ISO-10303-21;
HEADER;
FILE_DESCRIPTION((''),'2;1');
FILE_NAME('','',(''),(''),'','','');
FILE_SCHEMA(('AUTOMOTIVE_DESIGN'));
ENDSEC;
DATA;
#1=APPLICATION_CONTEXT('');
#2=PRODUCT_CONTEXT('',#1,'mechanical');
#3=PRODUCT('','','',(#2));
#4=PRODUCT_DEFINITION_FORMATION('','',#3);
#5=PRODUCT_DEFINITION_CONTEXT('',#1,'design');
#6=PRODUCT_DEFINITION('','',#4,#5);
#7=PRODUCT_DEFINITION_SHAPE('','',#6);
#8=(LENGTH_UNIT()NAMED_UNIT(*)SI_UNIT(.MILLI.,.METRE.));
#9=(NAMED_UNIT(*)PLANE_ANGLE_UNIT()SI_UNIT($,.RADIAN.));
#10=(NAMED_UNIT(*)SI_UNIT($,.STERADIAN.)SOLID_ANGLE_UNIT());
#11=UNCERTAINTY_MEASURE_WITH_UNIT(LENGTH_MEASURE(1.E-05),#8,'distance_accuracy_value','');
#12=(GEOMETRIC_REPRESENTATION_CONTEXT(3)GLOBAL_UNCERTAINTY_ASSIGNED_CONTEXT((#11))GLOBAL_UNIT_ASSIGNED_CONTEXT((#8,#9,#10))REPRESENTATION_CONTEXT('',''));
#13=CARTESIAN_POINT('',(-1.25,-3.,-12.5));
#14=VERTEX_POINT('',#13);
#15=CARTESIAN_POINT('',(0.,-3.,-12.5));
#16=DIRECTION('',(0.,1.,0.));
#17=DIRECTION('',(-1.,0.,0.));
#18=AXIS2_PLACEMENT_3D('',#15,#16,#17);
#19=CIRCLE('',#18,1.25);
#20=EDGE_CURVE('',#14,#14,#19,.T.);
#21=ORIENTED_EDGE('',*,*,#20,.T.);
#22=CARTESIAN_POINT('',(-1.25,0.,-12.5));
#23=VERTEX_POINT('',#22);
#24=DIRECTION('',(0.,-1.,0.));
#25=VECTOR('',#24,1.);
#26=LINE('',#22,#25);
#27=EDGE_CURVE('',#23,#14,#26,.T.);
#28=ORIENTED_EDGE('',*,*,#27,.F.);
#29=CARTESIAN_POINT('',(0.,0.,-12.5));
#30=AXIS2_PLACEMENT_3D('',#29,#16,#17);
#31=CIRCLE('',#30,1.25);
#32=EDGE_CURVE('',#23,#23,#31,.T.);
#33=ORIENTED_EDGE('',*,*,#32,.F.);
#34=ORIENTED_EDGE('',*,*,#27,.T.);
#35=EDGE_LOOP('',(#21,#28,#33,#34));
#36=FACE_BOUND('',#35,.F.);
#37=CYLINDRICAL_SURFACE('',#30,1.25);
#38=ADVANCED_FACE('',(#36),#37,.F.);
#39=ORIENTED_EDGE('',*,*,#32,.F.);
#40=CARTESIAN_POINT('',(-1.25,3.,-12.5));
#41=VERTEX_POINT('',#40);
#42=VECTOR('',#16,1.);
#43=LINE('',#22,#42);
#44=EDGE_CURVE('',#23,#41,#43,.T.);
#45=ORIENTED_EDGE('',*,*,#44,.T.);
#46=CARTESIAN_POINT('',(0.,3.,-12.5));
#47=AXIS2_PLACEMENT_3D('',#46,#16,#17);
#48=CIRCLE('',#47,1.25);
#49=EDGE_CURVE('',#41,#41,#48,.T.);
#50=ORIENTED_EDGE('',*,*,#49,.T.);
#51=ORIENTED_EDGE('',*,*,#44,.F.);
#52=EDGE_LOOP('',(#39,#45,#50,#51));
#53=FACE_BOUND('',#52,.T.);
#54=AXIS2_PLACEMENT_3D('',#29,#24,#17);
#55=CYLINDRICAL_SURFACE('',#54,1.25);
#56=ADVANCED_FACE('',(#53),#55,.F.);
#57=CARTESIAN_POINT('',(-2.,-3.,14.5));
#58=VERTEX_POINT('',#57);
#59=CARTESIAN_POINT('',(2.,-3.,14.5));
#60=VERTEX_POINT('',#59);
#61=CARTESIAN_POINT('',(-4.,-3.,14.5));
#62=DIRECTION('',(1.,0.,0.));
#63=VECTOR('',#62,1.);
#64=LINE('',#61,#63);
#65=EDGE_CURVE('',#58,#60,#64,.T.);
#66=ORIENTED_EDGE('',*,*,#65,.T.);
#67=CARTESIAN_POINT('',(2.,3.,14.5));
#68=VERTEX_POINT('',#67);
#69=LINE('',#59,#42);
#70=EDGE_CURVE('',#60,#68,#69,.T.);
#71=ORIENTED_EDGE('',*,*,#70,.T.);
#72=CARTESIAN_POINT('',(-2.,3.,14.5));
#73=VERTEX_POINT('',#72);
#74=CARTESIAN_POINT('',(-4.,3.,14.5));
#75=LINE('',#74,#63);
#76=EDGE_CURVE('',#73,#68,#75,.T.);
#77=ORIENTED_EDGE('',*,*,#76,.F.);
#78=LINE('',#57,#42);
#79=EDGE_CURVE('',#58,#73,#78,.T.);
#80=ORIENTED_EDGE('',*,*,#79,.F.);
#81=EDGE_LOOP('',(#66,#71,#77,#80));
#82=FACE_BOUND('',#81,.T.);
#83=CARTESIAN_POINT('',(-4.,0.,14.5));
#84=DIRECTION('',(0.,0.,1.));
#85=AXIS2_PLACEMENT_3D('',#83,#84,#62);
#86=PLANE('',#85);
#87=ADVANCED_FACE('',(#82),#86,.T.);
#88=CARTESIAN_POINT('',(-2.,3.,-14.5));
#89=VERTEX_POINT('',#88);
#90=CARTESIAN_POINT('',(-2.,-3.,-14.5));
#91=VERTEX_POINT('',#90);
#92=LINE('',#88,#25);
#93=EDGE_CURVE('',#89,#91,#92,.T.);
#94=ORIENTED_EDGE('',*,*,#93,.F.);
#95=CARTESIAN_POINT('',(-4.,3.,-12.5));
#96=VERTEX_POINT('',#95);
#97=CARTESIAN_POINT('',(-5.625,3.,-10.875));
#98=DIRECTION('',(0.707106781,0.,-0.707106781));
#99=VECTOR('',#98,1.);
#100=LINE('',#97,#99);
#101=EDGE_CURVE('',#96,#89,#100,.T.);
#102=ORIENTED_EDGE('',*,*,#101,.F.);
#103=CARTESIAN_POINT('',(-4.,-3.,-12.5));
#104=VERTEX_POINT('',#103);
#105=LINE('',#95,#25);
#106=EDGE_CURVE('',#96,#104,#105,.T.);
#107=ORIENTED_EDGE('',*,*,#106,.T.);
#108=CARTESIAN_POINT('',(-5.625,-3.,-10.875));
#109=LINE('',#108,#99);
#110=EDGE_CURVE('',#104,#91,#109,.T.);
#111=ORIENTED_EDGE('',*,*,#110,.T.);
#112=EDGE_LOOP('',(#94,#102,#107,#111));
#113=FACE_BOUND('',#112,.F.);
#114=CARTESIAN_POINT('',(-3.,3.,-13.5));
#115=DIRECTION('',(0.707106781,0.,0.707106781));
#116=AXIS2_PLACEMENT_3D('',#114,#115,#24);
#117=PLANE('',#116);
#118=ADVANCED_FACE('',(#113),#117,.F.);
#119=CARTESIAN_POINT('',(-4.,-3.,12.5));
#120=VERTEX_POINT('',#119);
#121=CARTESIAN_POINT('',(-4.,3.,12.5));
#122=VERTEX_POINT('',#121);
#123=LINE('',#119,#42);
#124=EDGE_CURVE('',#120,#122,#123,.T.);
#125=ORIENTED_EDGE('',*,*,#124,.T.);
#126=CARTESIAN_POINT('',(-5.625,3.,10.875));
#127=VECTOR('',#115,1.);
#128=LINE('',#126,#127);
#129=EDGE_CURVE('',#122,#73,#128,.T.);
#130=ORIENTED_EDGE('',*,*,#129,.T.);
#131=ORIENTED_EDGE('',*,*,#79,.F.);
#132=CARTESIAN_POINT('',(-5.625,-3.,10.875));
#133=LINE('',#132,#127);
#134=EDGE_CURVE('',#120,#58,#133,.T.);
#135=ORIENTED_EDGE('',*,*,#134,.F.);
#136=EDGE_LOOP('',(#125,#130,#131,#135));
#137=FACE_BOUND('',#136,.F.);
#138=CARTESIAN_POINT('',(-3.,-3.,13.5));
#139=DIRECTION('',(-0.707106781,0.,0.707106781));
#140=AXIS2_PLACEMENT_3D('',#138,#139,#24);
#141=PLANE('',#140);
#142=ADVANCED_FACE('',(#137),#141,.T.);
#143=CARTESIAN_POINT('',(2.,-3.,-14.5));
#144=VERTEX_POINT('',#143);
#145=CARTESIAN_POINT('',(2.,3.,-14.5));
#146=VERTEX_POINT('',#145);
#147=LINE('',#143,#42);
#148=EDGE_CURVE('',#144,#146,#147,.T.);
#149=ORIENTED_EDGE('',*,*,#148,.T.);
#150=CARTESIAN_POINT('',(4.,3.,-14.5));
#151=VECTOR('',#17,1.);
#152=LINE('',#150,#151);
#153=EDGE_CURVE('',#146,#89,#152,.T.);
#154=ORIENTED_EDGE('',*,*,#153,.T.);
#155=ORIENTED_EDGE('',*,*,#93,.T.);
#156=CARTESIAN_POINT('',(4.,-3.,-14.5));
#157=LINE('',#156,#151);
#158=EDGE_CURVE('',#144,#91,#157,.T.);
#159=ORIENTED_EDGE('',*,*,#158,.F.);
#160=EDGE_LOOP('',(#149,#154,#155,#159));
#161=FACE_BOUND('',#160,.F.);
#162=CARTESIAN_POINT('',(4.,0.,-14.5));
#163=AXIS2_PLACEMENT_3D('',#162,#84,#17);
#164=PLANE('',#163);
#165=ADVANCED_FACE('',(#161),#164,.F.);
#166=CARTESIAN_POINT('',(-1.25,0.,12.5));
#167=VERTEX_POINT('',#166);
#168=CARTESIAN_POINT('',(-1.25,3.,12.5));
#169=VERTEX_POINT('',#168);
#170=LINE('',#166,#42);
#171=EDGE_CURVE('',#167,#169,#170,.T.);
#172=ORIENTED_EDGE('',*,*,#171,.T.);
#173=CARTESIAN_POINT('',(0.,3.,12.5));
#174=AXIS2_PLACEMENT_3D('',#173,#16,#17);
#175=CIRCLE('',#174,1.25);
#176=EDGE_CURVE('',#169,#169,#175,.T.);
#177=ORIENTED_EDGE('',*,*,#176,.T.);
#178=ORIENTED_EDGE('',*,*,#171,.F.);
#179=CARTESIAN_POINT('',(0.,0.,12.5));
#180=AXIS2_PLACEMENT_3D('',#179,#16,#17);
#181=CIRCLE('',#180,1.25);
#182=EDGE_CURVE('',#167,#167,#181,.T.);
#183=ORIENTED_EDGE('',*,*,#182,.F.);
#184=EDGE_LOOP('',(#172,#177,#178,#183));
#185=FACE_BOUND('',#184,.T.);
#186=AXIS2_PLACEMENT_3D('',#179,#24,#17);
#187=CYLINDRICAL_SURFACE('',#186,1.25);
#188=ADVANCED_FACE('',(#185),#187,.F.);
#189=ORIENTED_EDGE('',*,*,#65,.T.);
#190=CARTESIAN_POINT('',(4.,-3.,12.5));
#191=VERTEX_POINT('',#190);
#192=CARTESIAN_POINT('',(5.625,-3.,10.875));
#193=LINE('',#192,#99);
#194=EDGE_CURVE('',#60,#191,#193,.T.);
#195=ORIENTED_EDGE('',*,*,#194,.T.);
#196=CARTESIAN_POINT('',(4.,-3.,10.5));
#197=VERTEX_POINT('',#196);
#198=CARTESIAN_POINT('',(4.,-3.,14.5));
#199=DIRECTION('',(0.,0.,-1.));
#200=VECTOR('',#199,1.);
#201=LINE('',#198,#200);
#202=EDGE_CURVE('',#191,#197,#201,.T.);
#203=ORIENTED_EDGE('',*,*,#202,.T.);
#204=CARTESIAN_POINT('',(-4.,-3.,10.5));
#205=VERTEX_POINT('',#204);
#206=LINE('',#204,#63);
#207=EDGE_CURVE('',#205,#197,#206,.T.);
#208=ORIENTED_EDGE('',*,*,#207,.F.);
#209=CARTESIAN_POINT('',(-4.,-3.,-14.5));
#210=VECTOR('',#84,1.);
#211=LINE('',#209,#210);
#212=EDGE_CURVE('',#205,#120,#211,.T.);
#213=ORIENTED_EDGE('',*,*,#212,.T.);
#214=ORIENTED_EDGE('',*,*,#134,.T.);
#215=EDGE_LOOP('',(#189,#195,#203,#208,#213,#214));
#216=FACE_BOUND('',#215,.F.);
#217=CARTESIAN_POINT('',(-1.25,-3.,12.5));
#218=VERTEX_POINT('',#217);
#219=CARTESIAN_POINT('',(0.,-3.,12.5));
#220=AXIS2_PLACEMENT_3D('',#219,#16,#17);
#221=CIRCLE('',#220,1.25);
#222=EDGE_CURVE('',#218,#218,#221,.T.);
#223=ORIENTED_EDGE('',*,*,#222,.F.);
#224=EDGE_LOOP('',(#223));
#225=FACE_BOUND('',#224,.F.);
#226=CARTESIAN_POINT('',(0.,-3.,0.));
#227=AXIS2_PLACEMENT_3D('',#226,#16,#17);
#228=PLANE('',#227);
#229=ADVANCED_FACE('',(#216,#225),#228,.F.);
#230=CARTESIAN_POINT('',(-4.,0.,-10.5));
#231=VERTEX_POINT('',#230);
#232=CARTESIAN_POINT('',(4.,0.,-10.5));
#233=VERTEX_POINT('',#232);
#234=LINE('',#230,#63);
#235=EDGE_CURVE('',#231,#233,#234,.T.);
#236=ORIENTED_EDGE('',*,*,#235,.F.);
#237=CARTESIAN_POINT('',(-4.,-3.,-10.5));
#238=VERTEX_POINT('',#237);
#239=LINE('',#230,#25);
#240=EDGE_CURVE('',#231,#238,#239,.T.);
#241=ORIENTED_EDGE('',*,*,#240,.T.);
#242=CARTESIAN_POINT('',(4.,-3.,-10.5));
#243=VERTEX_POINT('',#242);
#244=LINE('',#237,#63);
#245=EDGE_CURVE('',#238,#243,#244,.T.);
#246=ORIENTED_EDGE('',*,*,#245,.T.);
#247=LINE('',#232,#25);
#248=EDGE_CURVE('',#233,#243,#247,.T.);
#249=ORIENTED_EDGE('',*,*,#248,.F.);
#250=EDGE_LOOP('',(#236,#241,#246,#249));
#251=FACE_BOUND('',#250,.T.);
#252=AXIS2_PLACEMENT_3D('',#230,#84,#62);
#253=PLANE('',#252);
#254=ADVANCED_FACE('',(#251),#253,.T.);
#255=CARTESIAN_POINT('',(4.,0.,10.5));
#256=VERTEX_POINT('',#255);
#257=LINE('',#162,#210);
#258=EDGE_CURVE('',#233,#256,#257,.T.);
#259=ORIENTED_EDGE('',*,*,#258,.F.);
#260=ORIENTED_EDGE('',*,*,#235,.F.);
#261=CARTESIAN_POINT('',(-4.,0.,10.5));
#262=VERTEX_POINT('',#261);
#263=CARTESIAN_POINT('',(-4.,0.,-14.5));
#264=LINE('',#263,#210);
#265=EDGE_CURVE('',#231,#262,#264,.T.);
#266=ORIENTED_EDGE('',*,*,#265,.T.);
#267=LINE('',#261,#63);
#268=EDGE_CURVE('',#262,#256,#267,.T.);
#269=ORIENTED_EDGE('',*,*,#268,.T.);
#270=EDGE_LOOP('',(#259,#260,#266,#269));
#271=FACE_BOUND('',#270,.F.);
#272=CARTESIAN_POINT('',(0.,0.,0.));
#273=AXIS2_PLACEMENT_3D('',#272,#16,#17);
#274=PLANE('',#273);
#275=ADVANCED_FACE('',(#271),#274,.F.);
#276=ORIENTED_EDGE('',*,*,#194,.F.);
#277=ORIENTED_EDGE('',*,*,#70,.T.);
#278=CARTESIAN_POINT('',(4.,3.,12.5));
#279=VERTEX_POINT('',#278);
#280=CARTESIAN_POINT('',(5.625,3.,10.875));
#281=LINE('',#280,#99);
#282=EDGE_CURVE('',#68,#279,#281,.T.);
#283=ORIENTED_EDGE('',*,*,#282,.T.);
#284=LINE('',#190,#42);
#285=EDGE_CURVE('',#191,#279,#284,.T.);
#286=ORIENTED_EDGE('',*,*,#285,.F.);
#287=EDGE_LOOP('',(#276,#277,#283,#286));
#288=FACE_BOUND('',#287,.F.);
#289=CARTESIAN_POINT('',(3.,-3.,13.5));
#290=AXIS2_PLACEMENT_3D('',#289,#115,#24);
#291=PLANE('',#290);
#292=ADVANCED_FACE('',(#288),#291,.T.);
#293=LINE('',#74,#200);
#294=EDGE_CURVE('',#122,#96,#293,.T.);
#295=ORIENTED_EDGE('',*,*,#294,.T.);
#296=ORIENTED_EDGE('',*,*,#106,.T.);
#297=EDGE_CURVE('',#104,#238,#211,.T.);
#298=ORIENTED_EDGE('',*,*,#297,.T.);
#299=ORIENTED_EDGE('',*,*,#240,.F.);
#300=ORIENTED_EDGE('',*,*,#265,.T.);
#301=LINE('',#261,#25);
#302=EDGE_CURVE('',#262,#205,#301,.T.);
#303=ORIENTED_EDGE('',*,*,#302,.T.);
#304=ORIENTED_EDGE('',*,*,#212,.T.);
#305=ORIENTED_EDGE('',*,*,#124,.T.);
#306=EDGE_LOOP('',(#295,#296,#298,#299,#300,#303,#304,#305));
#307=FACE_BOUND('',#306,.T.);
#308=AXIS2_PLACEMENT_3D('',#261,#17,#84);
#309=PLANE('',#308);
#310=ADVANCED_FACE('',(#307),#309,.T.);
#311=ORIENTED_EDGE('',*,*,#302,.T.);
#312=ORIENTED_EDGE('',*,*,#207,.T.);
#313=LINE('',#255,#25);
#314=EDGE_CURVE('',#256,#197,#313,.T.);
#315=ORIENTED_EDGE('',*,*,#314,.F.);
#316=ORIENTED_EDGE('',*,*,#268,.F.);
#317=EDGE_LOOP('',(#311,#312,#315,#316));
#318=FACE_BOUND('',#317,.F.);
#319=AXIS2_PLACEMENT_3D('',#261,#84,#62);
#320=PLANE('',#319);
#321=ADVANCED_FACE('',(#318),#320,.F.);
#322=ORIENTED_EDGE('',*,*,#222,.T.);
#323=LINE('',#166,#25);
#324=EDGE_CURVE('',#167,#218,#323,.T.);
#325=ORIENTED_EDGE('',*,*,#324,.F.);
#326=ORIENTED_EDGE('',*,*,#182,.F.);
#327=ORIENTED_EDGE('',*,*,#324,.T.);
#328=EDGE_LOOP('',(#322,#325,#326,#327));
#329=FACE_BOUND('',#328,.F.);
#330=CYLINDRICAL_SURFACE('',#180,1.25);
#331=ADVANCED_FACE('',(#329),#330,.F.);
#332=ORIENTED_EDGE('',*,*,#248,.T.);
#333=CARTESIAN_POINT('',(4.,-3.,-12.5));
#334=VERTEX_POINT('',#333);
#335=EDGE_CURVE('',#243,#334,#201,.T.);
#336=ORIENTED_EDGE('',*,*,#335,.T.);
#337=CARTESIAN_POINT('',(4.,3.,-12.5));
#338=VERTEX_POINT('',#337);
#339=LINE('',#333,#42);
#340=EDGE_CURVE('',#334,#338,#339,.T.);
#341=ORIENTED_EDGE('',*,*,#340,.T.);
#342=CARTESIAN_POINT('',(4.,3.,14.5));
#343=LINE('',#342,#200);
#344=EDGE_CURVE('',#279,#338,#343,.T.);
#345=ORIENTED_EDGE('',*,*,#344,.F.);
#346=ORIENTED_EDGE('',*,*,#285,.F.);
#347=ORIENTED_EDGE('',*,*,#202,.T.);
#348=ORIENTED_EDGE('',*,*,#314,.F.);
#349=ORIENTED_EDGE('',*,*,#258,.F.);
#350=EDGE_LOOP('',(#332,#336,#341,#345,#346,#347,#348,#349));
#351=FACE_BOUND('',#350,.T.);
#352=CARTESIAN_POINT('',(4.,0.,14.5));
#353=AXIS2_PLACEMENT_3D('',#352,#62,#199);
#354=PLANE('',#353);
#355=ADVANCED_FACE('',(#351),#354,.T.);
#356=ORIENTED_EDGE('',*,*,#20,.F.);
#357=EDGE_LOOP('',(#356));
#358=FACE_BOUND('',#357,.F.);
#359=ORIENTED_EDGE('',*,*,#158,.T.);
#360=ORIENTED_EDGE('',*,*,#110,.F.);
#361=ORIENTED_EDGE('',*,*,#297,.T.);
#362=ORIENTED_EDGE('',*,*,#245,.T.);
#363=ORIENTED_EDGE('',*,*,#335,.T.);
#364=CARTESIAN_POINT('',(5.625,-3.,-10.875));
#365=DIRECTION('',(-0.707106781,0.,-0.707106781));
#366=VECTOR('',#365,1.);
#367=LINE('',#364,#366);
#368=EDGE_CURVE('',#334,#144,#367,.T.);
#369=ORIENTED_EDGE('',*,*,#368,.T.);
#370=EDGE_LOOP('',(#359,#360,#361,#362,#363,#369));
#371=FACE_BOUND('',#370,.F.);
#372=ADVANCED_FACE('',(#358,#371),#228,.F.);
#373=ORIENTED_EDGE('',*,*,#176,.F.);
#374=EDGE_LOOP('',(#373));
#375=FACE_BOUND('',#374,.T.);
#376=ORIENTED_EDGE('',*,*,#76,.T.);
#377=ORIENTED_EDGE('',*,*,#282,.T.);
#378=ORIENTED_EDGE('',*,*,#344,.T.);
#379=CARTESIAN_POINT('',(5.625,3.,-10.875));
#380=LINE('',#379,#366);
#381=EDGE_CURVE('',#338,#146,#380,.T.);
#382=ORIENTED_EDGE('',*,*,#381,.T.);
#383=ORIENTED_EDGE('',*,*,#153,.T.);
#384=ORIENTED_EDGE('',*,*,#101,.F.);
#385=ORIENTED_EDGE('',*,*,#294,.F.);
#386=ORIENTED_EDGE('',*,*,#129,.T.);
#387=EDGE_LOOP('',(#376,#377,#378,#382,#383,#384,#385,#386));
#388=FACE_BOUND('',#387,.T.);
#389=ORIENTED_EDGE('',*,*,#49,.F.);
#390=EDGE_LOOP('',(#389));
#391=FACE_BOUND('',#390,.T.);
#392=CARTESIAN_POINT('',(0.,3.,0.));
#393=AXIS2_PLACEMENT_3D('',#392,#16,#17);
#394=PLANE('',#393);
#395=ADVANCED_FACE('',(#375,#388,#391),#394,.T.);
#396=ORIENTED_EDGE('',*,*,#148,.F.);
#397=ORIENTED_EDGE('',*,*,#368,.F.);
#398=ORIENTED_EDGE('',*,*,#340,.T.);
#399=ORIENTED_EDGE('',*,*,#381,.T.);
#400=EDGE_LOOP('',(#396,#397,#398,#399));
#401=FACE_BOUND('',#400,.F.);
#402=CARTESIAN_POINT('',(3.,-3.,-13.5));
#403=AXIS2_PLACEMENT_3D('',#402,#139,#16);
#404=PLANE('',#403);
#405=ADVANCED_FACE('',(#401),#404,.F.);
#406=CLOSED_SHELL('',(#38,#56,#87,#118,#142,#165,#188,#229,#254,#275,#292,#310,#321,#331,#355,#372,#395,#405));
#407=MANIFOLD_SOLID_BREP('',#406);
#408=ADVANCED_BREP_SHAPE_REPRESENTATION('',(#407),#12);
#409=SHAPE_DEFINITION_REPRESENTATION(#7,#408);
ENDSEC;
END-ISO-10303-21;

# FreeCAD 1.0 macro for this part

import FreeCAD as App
import Part
import Sketcher

V = App.Vector
Q = App.Units.Quantity


def edges_at(feature, points):
    """Names of the edges that pass closest to the given points."""
    edges = feature.Shape.Edges
    near = lambda p: min(range(len(edges)), key=lambda i: edges[i].distToShape(Part.Vertex(*p))[0])
    return sorted({f"Edge{near(p) + 1}" for p in points})

doc = App.newDocument("Part")
body = doc.addObject("PartDesign::Body", "Body")
body.AllowCompound = True

sketch1 = body.newObject("Sketcher::SketchObject", "Sketch")
sketch1.AttachmentSupport = (doc.getObject("XZ_Plane"), [""])
sketch1.MapMode = "FlatFace"
sketch1.addGeometry([
    Part.LineSegment(V(-4, 10.5, 0), V(-4, 14.5, 0)),
    Part.LineSegment(V(-4, 14.5, 0), V(4, 14.5, 0)),
    Part.LineSegment(V(4, 14.5, 0), V(4, 10.5, 0)),
    Part.LineSegment(V(4, 10.5, 0), V(-4, 10.5, 0)),
    Part.Circle(V(0, 12.5, 0), V(0, 0, 1), 1.2),
    Part.LineSegment(V(-4, -14.5, 0), V(-4, -10.5, 0)),
    Part.LineSegment(V(-4, -10.5, 0), V(4, -10.5, 0)),
    Part.LineSegment(V(4, -10.5, 0), V(4, -14.5, 0)),
    Part.LineSegment(V(4, -14.5, 0), V(-4, -14.5, 0)),
    Part.Circle(V(0, -12.5, 0), V(0, 0, 1), 1.2),
], False)
sketch1.addConstraint([
    Sketcher.Constraint("Coincident", 0, 2, 1, 1),
    Sketcher.Constraint("Coincident", 1, 2, 2, 1),
    Sketcher.Constraint("Coincident", 2, 2, 3, 1),
    Sketcher.Constraint("Coincident", 3, 2, 0, 1),
    Sketcher.Constraint("Coincident", 5, 2, 6, 1),
    Sketcher.Constraint("Coincident", 6, 2, 7, 1),
    Sketcher.Constraint("Coincident", 7, 2, 8, 1),
    Sketcher.Constraint("Coincident", 8, 2, 5, 1),
    Sketcher.Constraint("Vertical", 0),
    Sketcher.Constraint("Horizontal", 1),
    Sketcher.Constraint("Vertical", 2),
    Sketcher.Constraint("Horizontal", 3),
    Sketcher.Constraint("Vertical", 5),
    Sketcher.Constraint("Horizontal", 6),
    Sketcher.Constraint("Vertical", 7),
    Sketcher.Constraint("Horizontal", 8),
    Sketcher.Constraint("Equal", 4, 9),
    Sketcher.Constraint("Symmetric", 4, 3, 9, 3, -1, 1),
    Sketcher.Constraint("Symmetric", 2, 2, 5, 2, -1, 1),
    Sketcher.Constraint("Symmetric", 0, 2, 7, 2, -1, 1),
    Sketcher.Constraint("PointOnObject", 4, 3, -2),
    Sketcher.Constraint("Vertical", 3, 2, 5, 2),
    Sketcher.Constraint("Diameter", 4, Q("2.5 mm")),
    Sketcher.Constraint("DistanceX", 1, 1, 1, 2, Q("8 mm")),
    Sketcher.Constraint("DistanceY", 0, 1, 0, 2, Q("4 mm")),
    Sketcher.Constraint("DistanceY", 4, 3, 0, 2, Q("2 mm")),
    Sketcher.Constraint("DistanceY", 9, 3, 4, 3, Q("25 mm")),
])
pad1 = body.newObject("PartDesign::Pad", "Pad")
pad1.Profile = sketch1
pad1.Length = 3

sketch2 = body.newObject("Sketcher::SketchObject", "Sketch001")
sketch2.AttachmentSupport = (doc.getObject("XZ_Plane"), [""])
sketch2.MapMode = "FlatFace"
sketch2.addGeometry([
    Part.LineSegment(V(-4, 14.5, 0), V(4, 14.5, 0)),
    Part.LineSegment(V(4, 14.5, 0), V(4, -14.5, 0)),
    Part.LineSegment(V(4, -14.5, 0), V(-4, -14.5, 0)),
    Part.LineSegment(V(-4, -14.5, 0), V(-4, 14.5, 0)),
    Part.Circle(V(0, 12.5, 0), V(0, 0, 1), 1.2),
    Part.Circle(V(0, -12.5, 0), V(0, 0, 1), 1.2),
], False)
sketch2.addConstraint([
    Sketcher.Constraint("Coincident", 0, 2, 1, 1),
    Sketcher.Constraint("Coincident", 1, 2, 2, 1),
    Sketcher.Constraint("Coincident", 2, 2, 3, 1),
    Sketcher.Constraint("Coincident", 3, 2, 0, 1),
    Sketcher.Constraint("Horizontal", 0),
    Sketcher.Constraint("Vertical", 1),
    Sketcher.Constraint("Horizontal", 2),
    Sketcher.Constraint("Vertical", 3),
    Sketcher.Constraint("Equal", 4, 5),
    Sketcher.Constraint("Symmetric", 4, 3, 5, 3, -1, 1),
    Sketcher.Constraint("Symmetric", 0, 2, 2, 2, -1, 1),
    Sketcher.Constraint("PointOnObject", 4, 3, -2),
    Sketcher.Constraint("Diameter", 4, Q("2.5 mm")),
    Sketcher.Constraint("DistanceX", 0, 1, 0, 2, Q("8 mm")),
    Sketcher.Constraint("DistanceY", 1, 2, 1, 1, Q("29 mm")),
    Sketcher.Constraint("DistanceY", 4, 3, 0, 2, Q("2 mm")),
])
pad2 = body.newObject("PartDesign::Pad", "Pad001")
pad2.Profile = sketch2
pad2.Length = 3
pad2.Reversed = True
doc.recompute()

chamfer = body.newObject("PartDesign::Chamfer", "Chamfer")
chamfer.Base = (pad2, edges_at(pad2, [
    (4, 0, -14.5),
    (4, 0, 14.5),
    (-4, 0, 14.5),
    (-4, 0, -14.5),
]))
chamfer.Size = 2

doc.recompute()
